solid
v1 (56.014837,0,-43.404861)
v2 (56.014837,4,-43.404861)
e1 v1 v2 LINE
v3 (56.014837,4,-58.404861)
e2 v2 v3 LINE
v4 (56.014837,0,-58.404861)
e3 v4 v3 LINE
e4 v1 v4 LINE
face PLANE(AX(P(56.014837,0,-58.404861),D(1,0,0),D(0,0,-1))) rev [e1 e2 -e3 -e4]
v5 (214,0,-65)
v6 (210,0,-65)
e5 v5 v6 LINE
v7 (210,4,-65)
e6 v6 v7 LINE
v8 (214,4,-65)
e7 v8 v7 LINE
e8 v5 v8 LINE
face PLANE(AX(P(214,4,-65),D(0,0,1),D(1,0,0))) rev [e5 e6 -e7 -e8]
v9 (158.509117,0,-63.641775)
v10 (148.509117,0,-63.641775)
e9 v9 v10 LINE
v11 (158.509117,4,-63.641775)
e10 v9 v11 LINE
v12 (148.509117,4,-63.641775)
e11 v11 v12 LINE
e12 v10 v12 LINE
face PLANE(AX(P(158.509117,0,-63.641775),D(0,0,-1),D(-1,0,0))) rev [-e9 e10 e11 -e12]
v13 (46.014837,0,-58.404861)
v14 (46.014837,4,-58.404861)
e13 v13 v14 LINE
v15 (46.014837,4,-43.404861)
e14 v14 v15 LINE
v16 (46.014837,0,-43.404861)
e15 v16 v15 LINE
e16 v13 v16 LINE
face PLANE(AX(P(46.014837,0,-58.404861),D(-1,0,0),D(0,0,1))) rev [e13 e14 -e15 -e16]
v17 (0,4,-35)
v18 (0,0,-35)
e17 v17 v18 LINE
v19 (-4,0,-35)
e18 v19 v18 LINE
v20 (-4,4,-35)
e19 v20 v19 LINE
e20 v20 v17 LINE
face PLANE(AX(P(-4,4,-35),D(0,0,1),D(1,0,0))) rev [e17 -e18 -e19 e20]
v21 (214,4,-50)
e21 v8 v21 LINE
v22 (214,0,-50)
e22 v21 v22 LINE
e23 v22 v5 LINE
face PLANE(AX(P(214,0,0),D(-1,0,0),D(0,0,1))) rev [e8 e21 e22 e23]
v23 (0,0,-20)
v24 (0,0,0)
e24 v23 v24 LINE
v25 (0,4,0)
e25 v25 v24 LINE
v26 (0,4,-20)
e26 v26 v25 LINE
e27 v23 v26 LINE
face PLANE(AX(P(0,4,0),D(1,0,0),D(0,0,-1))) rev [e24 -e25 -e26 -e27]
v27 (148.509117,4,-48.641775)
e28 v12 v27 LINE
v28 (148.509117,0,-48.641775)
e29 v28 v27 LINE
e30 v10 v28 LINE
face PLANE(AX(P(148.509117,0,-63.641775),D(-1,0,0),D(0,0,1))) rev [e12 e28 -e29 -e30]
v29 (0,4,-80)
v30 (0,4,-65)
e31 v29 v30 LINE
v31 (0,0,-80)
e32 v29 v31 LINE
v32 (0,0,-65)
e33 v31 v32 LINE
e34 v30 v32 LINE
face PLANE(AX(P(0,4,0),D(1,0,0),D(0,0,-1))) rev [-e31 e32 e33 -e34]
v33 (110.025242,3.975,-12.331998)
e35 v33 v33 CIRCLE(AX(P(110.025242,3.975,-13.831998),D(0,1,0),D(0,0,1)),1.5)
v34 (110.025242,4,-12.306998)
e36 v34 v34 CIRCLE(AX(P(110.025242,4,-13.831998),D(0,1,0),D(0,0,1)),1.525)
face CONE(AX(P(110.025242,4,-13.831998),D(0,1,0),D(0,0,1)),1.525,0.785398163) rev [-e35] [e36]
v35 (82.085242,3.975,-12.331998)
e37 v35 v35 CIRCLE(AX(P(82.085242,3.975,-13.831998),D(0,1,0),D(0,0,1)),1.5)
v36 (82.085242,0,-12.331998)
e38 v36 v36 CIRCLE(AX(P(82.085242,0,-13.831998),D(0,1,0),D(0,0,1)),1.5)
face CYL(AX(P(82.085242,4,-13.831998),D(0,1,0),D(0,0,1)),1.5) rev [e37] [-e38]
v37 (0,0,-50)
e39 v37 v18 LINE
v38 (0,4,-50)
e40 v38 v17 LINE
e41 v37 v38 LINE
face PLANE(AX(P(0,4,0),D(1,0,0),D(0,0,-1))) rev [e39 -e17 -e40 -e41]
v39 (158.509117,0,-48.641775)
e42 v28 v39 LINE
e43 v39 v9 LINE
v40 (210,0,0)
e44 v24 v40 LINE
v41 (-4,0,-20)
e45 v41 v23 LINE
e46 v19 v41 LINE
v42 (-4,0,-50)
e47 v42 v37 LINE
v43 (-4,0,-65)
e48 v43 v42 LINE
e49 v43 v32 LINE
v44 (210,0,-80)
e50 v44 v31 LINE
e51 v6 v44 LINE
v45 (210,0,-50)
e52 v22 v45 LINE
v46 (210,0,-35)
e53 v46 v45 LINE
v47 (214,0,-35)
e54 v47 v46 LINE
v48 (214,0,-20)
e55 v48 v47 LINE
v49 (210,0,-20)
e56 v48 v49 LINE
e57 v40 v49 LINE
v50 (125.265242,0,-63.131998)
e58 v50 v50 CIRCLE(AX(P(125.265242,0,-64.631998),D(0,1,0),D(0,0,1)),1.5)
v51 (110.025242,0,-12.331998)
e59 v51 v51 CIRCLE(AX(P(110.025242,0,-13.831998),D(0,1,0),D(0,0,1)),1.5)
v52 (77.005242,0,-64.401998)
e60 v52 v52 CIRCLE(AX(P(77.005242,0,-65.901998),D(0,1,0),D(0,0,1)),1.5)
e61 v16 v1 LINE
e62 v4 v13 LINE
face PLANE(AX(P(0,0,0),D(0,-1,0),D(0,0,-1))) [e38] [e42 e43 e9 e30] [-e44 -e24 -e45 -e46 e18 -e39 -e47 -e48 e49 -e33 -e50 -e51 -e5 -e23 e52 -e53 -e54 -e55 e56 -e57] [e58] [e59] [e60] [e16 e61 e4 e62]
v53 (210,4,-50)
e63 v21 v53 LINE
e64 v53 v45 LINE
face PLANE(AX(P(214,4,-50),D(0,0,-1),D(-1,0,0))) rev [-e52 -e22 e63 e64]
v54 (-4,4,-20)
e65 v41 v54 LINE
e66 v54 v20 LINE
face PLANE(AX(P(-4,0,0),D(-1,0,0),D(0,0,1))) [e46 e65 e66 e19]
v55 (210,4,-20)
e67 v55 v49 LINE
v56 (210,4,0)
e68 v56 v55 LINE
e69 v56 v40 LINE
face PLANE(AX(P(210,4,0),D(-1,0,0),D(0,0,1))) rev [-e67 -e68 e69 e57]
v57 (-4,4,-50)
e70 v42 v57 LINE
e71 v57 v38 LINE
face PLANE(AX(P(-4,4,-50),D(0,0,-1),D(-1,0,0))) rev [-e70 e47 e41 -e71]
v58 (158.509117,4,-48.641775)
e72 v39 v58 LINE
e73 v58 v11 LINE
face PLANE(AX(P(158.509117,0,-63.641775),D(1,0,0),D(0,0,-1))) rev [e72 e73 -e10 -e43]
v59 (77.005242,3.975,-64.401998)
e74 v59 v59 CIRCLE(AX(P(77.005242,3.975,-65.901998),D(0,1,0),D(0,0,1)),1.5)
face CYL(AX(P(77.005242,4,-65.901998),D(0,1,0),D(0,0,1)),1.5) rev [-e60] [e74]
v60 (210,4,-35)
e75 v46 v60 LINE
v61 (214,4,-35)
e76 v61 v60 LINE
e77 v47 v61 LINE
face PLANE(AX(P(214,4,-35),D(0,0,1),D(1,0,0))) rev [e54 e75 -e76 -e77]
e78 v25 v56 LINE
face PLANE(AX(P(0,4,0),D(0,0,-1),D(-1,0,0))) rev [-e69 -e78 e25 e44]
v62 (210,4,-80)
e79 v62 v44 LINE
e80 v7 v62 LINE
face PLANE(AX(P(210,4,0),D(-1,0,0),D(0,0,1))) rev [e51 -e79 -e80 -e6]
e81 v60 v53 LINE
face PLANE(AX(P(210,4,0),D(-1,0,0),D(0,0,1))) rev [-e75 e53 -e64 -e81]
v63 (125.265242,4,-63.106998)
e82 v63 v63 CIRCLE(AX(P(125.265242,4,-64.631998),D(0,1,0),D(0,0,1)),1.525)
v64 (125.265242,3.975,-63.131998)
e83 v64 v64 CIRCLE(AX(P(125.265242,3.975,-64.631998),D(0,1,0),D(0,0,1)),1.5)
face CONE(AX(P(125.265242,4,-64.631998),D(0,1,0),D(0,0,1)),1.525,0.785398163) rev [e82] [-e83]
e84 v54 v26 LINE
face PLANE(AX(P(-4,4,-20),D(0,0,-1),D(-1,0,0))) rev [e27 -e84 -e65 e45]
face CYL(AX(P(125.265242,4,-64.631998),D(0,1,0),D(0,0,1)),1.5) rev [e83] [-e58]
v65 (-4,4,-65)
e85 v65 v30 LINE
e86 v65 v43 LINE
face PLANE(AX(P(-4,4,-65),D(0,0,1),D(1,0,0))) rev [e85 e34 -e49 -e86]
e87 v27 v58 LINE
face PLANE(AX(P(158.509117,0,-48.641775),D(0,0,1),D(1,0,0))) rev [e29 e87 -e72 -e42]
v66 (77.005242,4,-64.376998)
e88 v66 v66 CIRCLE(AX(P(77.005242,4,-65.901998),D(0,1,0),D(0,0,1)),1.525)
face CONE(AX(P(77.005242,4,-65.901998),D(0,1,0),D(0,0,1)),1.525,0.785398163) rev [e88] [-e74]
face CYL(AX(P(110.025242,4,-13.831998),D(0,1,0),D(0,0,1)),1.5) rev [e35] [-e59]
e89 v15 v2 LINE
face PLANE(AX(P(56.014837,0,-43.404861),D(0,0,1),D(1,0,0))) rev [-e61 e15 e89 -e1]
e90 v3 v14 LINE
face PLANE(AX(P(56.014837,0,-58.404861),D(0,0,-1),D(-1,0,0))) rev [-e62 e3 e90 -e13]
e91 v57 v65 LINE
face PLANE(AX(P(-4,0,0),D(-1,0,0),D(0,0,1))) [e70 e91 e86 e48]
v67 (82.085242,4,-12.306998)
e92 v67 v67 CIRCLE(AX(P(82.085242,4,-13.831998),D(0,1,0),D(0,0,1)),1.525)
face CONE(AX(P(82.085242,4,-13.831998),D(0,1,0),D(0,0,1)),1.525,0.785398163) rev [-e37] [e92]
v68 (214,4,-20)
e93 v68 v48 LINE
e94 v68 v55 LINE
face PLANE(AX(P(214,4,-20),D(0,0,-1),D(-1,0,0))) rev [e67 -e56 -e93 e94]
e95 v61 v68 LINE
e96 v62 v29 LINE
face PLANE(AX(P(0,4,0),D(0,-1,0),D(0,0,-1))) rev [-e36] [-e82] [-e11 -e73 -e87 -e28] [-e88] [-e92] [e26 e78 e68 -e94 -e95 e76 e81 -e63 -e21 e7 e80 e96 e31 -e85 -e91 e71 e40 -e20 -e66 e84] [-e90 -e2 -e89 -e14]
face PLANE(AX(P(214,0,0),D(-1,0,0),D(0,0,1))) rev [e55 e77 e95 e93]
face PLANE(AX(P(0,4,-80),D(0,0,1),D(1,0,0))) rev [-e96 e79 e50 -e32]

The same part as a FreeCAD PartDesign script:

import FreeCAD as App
import Part
import Sketcher
Q = App.Units.Quantity

doc = App.newDocument("Part")
body = doc.addObject("PartDesign::Body", "Body")

# Sketch on XZ plane
sketch1 = body.newObject("Sketcher::SketchObject", "Sketch")
sketch1.AttachmentSupport = (doc.getObject("XZ_Plane"), [""])
sketch1.MapMode = "FlatFace"
sketch1.addGeometry([
    Part.LineSegment(App.Vector(0, -80, 0), App.Vector(0, 0, 0)),
    Part.LineSegment(App.Vector(0, 0, 0), App.Vector(210, 0, 0)),
    Part.LineSegment(App.Vector(210, 0, 0), App.Vector(210, -80, 0)),
    Part.LineSegment(App.Vector(210, -80, 0), App.Vector(0, -80, 0)),
], False)
sketch1.addConstraint([
    Sketcher.Constraint("Coincident", 0, 2, 1, 1),
    Sketcher.Constraint("Coincident", 1, 2, 2, 1),
    Sketcher.Constraint("Coincident", 2, 2, 3, 1),
    Sketcher.Constraint("Coincident", 3, 2, 0, 1),
    Sketcher.Constraint("Vertical", 0),
    Sketcher.Constraint("Horizontal", 1),
    Sketcher.Constraint("Vertical", 2),
    Sketcher.Constraint("Horizontal", 3),
    Sketcher.Constraint("Coincident", 0, 2, -1, 1),
    Sketcher.Constraint("DistanceX", 1, 1, 1, 2, Q("210 mm")),
    Sketcher.Constraint("DistanceY", 0, 1, 0, 2, Q("80 mm")),
])
pad1 = body.newObject("PartDesign::Pad", "Pad")
pad1.Profile = sketch1
pad1.Length = 4
pad1.Reversed = True

# Sketch on XZ plane
sketch2 = body.newObject("Sketcher::SketchObject", "Sketch001")
sketch2.AttachmentSupport = (doc.getObject("XZ_Plane"), [""])
sketch2.MapMode = "FlatFace"
sketch2.AttachmentOffset = App.Placement(App.Vector(0, 0, -4), App.Rotation())
sketch2.addGeometry([
    Part.LineSegment(App.Vector(149, -64, 0), App.Vector(149, -49, 0)),  # 0
    Part.LineSegment(App.Vector(149, -49, 0), App.Vector(159, -49, 0)),  # 1
    Part.LineSegment(App.Vector(159, -49, 0), App.Vector(159, -64, 0)),  # 2
    Part.LineSegment(App.Vector(159, -64, 0), App.Vector(149, -64, 0)),  # 3
    Part.LineSegment(App.Vector(46, -58, 0), App.Vector(46, -43, 0)),  # 4
    Part.LineSegment(App.Vector(46, -43, 0), App.Vector(56, -43, 0)),  # 5
    Part.LineSegment(App.Vector(56, -43, 0), App.Vector(56, -58, 0)),  # 6
    Part.LineSegment(App.Vector(56, -58, 0), App.Vector(46, -58, 0)),  # 7
], False)
sketch2.addConstraint([
    Sketcher.Constraint("Coincident", 0, 2, 1, 1),
    Sketcher.Constraint("Coincident", 1, 2, 2, 1),
    Sketcher.Constraint("Coincident", 2, 2, 3, 1),
    Sketcher.Constraint("Coincident", 3, 2, 0, 1),
    Sketcher.Constraint("Coincident", 4, 2, 5, 1),
    Sketcher.Constraint("Coincident", 5, 2, 6, 1),
    Sketcher.Constraint("Coincident", 6, 2, 7, 1),
    Sketcher.Constraint("Coincident", 7, 2, 4, 1),
    Sketcher.Constraint("Vertical", 0),
    Sketcher.Constraint("Horizontal", 1),
    Sketcher.Constraint("Vertical", 2),
    Sketcher.Constraint("Horizontal", 3),
    Sketcher.Constraint("Vertical", 4),
    Sketcher.Constraint("Horizontal", 5),
    Sketcher.Constraint("Vertical", 6),
    Sketcher.Constraint("Horizontal", 7),
    Sketcher.Constraint("Equal", 3, 5),
    Sketcher.Constraint("Equal", 2, 4),
    Sketcher.Constraint("DistanceX", 1, 1, 1, 2, Q("10 mm")),
    Sketcher.Constraint("DistanceY", 0, 1, 0, 2, Q("15 mm")),
    Sketcher.Constraint("DistanceY", 4, 2, -1, 1, Q("43.404861 mm")),
    Sketcher.Constraint("DistanceX", 4, 2, 0, 2, Q("102.494279 mm")),
    Sketcher.Constraint("DistanceX", -1, 1, 0, 2, Q("148.509117 mm")),
    Sketcher.Constraint("DistanceY", 0, 2, -1, 1, Q("48.641775 mm")),
])
pocket1 = body.newObject("PartDesign::Pocket", "Pocket")
pocket1.Profile = sketch2
pocket1.Type = "ThroughAll"
pocket1.Reversed = True

# Sketch on YZ plane
sketch3 = body.newObject("Sketcher::SketchObject", "Sketch002")
sketch3.AttachmentSupport = (doc.getObject("YZ_Plane"), [""])
sketch3.MapMode = "FlatFace"
sketch3.addGeometry([
    Part.LineSegment(App.Vector(4, -65, 0), App.Vector(0, -65, 0)),  # 0
    Part.LineSegment(App.Vector(0, -65, 0), App.Vector(0, -50, 0)),  # 1
    Part.LineSegment(App.Vector(0, -50, 0), App.Vector(4, -50, 0)),  # 2
    Part.LineSegment(App.Vector(4, -50, 0), App.Vector(4, -65, 0)),  # 3
    Part.LineSegment(App.Vector(4, -35, 0), App.Vector(0, -35, 0)),  # 4
    Part.LineSegment(App.Vector(0, -35, 0), App.Vector(0, -20, 0)),  # 5
    Part.LineSegment(App.Vector(0, -20, 0), App.Vector(4, -20, 0)),  # 6
    Part.LineSegment(App.Vector(4, -20, 0), App.Vector(4, -35, 0)),  # 7
], False)
sketch3.addConstraint([
    Sketcher.Constraint("Coincident", 0, 2, 1, 1),
    Sketcher.Constraint("Coincident", 1, 2, 2, 1),
    Sketcher.Constraint("Coincident", 2, 2, 3, 1),
    Sketcher.Constraint("Coincident", 3, 2, 0, 1),
    Sketcher.Constraint("Coincident", 4, 2, 5, 1),
    Sketcher.Constraint("Coincident", 5, 2, 6, 1),
    Sketcher.Constraint("Coincident", 6, 2, 7, 1),
    Sketcher.Constraint("Coincident", 7, 2, 4, 1),
    Sketcher.Constraint("Horizontal", 0),
    Sketcher.Constraint("Vertical", 1),
    Sketcher.Constraint("Horizontal", 2),
    Sketcher.Constraint("Vertical", 3),
    Sketcher.Constraint("Horizontal", 4),
    Sketcher.Constraint("Vertical", 5),
    Sketcher.Constraint("Horizontal", 6),
    Sketcher.Constraint("Vertical", 7),
    Sketcher.Constraint("PointOnObject", 0, 2, -2),
    Sketcher.Constraint("PointOnObject", 4, 2, -2),
    Sketcher.Constraint("Vertical", 3, 2, 6, 2),
    Sketcher.Constraint("Equal", 3, 5),
    Sketcher.Constraint("DistanceX", 0, 2, 0, 1, Q("4 mm")),
    Sketcher.Constraint("DistanceY", 1, 1, 1, 2, Q("15 mm")),
    Sketcher.Constraint("DistanceY", 0, 2, -1, 1, Q("65 mm")),
    Sketcher.Constraint("DistanceY", 4, 2, -1, 1, Q("35 mm")),
])
pad2 = body.newObject("PartDesign::Pad", "Pad001")
pad2.Profile = sketch3
pad2.Length = 4
pad2.Reversed = True

# Sketch on YZ plane
sketch4 = body.newObject("Sketcher::SketchObject", "Sketch003")
sketch4.AttachmentSupport = (doc.getObject("YZ_Plane"), [""])
sketch4.MapMode = "FlatFace"
sketch4.AttachmentOffset = App.Placement(App.Vector(0, 0, 210), App.Rotation())
sketch4.addGeometry([
    Part.LineSegment(App.Vector(4, -50, 0), App.Vector(0, -50, 0)),  # 0
    Part.LineSegment(App.Vector(0, -50, 0), App.Vector(0, -65, 0)),  # 1
    Part.LineSegment(App.Vector(0, -65, 0), App.Vector(4, -65, 0)),  # 2
    Part.LineSegment(App.Vector(4, -65, 0), App.Vector(4, -50, 0)),  # 3
    Part.LineSegment(App.Vector(4, -20, 0), App.Vector(0, -20, 0)),  # 4
    Part.LineSegment(App.Vector(0, -20, 0), App.Vector(0, -35, 0)),  # 5
    Part.LineSegment(App.Vector(0, -35, 0), App.Vector(4, -35, 0)),  # 6
    Part.LineSegment(App.Vector(4, -35, 0), App.Vector(4, -20, 0)),  # 7
], False)
sketch4.addConstraint([
    Sketcher.Constraint("Coincident", 0, 2, 1, 1),
    Sketcher.Constraint("Coincident", 1, 2, 2, 1),
    Sketcher.Constraint("Coincident", 2, 2, 3, 1),
    Sketcher.Constraint("Coincident", 3, 2, 0, 1),
    Sketcher.Constraint("Coincident", 4, 2, 5, 1),
    Sketcher.Constraint("Coincident", 5, 2, 6, 1),
    Sketcher.Constraint("Coincident", 6, 2, 7, 1),
    Sketcher.Constraint("Coincident", 7, 2, 4, 1),
    Sketcher.Constraint("Horizontal", 0),
    Sketcher.Constraint("Vertical", 1),
    Sketcher.Constraint("Horizontal", 2),
    Sketcher.Constraint("Vertical", 3),
    Sketcher.Constraint("Horizontal", 4),
    Sketcher.Constraint("Vertical", 5),
    Sketcher.Constraint("Horizontal", 6),
    Sketcher.Constraint("Vertical", 7),
    Sketcher.Constraint("PointOnObject", 0, 2, -2),
    Sketcher.Constraint("PointOnObject", 4, 2, -2),
    Sketcher.Constraint("Vertical", 3, 2, 6, 2),
    Sketcher.Constraint("Equal", 3, 5),
    Sketcher.Constraint("DistanceX", 0, 2, 0, 1, Q("4 mm")),
    Sketcher.Constraint("DistanceY", 1, 2, 1, 1, Q("15 mm")),
    Sketcher.Constraint("DistanceY", 0, 2, -1, 1, Q("50 mm")),
    Sketcher.Constraint("DistanceY", 4, 2, -1, 1, Q("20 mm")),
])
pad3 = body.newObject("PartDesign::Pad", "Pad002")
pad3.Profile = sketch4
pad3.Length = 4

# Sketch on XZ plane
sketch5 = body.newObject("Sketcher::SketchObject", "Sketch004")
sketch5.AttachmentSupport = (doc.getObject("XZ_Plane"), [""])
sketch5.MapMode = "FlatFace"
sketch5.AttachmentOffset = App.Placement(App.Vector(0, 0, -4), App.Rotation())
sketch5.addGeometry([
    Part.Circle(App.Vector(125.3, -64.6, 0), App.Vector(0, 0, 1), 1.5),
    Part.Circle(App.Vector(77, -65.9, 0), App.Vector(0, 0, 1), 1.5),
    Part.Circle(App.Vector(82.1, -13.8, 0), App.Vector(0, 0, 1), 1.5),
    Part.Circle(App.Vector(110, -13.8, 0), App.Vector(0, 0, 1), 1.5),
], False)
sketch5.addConstraint([
    Sketcher.Constraint("Equal", 0, 1),
    Sketcher.Constraint("Equal", 1, 2),
    Sketcher.Constraint("Equal", 2, 3),
    Sketcher.Constraint("Horizontal", 2, 3, 3, 3),
    Sketcher.Constraint("Diameter", 0, Q("3 mm")),
    Sketcher.Constraint("DistanceY", 0, 3, 2, 3, Q("50.8 mm")),
    Sketcher.Constraint("DistanceX", 1, 3, 0, 3, Q("48.26 mm")),
    Sketcher.Constraint("DistanceY", 1, 3, 0, 3, Q("1.27 mm")),
    Sketcher.Constraint("DistanceX", 1, 3, 2, 3, Q("5.08 mm")),
    Sketcher.Constraint("DistanceX", 2, 3, 3, 3, Q("27.94 mm")),
    Sketcher.Constraint("DistanceY", 0, 3, -1, 1, Q("64.631998 mm")),
    Sketcher.Constraint("DistanceX", -1, 1, 0, 3, Q("125.265242 mm")),
])
doc.recompute()
hole = body.newObject("PartDesign::Hole", "Hole")
hole.Profile = sketch5
hole.ThreadType = "None"
hole.Diameter = 3
hole.DepthType = "ThroughAll"
hole.HoleCutType = "Countersink"
hole.HoleCutDiameter = 3.05
hole.HoleCutCountersinkAngle = 90
hole.Reversed = True

doc.recompute()
